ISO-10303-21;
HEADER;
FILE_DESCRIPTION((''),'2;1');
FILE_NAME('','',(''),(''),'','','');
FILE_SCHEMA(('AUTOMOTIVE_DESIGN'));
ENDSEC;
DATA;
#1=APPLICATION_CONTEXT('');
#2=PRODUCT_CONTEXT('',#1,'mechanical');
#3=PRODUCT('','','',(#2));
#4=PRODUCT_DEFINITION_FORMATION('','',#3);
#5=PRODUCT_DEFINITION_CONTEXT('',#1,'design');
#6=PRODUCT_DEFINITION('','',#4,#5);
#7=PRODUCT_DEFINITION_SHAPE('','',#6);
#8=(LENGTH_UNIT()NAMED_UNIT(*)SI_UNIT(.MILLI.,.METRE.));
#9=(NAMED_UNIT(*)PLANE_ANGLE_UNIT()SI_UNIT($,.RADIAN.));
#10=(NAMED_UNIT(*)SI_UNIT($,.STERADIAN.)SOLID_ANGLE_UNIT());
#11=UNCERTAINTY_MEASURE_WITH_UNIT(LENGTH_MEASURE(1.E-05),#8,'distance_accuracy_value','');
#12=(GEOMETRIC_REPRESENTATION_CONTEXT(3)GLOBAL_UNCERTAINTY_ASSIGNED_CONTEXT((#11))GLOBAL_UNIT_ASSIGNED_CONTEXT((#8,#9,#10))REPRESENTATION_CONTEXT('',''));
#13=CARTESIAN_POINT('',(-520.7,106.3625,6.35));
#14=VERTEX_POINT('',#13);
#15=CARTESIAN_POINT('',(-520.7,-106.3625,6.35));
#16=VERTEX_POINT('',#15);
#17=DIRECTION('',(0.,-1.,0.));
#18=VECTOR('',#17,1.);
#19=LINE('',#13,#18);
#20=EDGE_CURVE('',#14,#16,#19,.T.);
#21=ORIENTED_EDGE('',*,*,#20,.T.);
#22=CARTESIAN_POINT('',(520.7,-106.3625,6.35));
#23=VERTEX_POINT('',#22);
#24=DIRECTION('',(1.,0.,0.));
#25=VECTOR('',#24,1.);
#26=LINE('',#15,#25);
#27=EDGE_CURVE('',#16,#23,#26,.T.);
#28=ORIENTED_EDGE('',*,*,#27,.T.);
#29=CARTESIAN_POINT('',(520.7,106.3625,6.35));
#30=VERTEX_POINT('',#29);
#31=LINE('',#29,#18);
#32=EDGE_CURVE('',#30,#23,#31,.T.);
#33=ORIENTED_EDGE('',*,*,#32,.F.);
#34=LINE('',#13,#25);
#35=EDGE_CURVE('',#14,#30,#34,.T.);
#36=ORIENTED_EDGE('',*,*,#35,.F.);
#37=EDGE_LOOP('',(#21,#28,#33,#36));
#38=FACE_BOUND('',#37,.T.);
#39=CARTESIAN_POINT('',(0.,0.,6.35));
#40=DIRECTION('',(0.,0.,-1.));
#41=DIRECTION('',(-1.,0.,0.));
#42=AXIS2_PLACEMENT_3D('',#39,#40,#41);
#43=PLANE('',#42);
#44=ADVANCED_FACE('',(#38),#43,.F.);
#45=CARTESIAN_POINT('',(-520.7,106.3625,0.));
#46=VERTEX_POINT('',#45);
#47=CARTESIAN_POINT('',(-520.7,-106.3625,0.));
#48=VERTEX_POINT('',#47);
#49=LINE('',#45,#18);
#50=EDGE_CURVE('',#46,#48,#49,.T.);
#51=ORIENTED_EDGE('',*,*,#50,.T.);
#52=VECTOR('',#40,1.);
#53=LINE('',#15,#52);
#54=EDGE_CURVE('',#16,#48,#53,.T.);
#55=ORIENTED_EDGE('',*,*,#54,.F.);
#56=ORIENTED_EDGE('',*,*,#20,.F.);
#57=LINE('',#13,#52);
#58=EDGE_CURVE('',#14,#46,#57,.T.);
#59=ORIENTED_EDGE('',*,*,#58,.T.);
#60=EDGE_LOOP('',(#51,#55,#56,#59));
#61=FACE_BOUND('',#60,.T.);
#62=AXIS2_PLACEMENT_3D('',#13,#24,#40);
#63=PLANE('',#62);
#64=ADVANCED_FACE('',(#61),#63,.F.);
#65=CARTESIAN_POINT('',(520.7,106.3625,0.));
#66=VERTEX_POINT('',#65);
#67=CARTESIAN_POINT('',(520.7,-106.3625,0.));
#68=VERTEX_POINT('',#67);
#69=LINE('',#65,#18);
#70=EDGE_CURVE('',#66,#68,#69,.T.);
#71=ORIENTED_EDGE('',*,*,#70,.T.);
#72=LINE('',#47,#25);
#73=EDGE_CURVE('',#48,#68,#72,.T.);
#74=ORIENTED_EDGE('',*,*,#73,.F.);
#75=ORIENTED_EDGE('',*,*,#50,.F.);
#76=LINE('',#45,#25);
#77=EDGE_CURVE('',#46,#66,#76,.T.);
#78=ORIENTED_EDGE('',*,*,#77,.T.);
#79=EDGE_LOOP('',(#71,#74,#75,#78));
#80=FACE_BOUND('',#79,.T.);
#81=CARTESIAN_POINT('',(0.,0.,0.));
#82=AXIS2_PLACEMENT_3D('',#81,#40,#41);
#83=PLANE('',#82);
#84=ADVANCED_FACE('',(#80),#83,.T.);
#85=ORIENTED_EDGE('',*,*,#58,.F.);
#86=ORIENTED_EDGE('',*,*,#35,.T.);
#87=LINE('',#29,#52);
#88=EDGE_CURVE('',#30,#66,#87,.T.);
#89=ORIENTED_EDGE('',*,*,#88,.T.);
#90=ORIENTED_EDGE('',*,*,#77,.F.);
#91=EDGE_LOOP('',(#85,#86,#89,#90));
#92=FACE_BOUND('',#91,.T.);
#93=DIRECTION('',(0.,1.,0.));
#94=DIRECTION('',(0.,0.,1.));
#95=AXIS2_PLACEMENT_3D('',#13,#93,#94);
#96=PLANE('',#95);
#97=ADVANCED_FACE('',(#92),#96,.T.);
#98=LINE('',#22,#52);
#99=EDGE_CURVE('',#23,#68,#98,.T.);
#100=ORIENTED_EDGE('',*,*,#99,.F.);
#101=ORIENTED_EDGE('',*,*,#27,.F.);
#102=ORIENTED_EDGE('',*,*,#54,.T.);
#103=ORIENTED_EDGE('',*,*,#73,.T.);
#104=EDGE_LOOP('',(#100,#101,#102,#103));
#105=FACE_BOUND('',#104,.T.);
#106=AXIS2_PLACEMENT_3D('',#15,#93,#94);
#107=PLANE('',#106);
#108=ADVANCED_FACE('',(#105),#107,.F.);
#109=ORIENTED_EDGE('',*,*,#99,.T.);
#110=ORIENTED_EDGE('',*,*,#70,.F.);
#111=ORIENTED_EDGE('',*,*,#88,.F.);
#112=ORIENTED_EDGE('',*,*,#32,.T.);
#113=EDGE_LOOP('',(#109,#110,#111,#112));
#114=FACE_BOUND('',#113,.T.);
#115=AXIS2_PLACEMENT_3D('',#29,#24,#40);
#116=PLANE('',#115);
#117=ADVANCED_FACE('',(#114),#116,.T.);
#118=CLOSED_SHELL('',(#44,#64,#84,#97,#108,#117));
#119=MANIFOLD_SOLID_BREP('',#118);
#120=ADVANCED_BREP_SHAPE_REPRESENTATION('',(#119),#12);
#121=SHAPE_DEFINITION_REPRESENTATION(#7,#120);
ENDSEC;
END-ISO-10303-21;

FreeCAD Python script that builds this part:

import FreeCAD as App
import Part
import Sketcher
from FreeCAD import Vector
Q = App.Units.Quantity


def add_polygon(sketch, points):
    """Adds a closed chain of lines whose ends are joined by coincident constraints."""
    first, n = sketch.GeometryCount, len(points)
    for a, b in zip(points, points[1:] + points[:1]):
        sketch.addGeometry(Part.LineSegment(App.Vector(*a, 0), App.Vector(*b, 0)), False)
    for i in range(n):
        sketch.addConstraint(Sketcher.Constraint("Coincident", first + i, 2, first + (i + 1) % n, 1))

doc = App.newDocument("Part")
body = doc.addObject("PartDesign::Body", "Body")

# Sketch on XY plane
sketch1 = body.newObject("Sketcher::SketchObject", "Sketch")
sketch1.AttachmentSupport = (doc.getObject("XY_Plane"), [""])
sketch1.MapMode = "FlatFace"
add_polygon(sketch1, [(-521, 106), (-521, -106), (521, -106), (521, 106)])  # lines 0-3
sketch1.addConstraint([
    Sketcher.Constraint("Vertical", 0),
    Sketcher.Constraint("Horizontal", 1),
    Sketcher.Constraint("Vertical", 2),
    Sketcher.Constraint("Horizontal", 3),
    Sketcher.Constraint("Symmetric", 0, 2, 2, 2, -1, 1),
    Sketcher.Constraint("DistanceX", 1, 1, 1, 2, Q("41 in")),
    Sketcher.Constraint("DistanceY", 0, 2, 0, 1, Q("8.375 in")),
])
pad1 = body.newObject("PartDesign::Pad", "Pad")
pad1.Profile = sketch1
pad1.Length = Q("0.25 in")

doc.recompute()
